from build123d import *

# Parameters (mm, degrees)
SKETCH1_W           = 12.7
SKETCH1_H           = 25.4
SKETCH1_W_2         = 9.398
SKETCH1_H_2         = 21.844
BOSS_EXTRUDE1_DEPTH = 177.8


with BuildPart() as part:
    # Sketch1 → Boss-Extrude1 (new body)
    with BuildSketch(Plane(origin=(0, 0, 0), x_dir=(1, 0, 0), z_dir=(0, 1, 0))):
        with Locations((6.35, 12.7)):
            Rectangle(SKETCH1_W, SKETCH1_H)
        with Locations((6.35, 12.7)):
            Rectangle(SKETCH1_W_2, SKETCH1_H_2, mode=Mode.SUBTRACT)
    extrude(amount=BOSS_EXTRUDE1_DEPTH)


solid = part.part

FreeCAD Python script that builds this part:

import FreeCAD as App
import Part
import Sketcher
from FreeCAD import Vector
Q = App.Units.Quantity


def add_polygon(sketch, points):
    """Adds a closed chain of lines whose ends are joined by coincident constraints."""
    first, n = sketch.GeometryCount, len(points)
    for a, b in zip(points, points[1:] + points[:1]):
        sketch.addGeometry(Part.LineSegment(App.Vector(*a, 0), App.Vector(*b, 0)), False)
    for i in range(n):
        sketch.addConstraint(Sketcher.Constraint("Coincident", first + i, 2, first + (i + 1) % n, 1))

doc = App.newDocument("Part")
body = doc.addObject("PartDesign::Body", "Body")

# Sketch on XZ plane
sketch1 = body.newObject("Sketcher::SketchObject", "Sketch")
sketch1.AttachmentSupport = (doc.getObject("XZ_Plane"), [""])
sketch1.MapMode = "FlatFace"
add_polygon(sketch1, [(0, -25), (0, 0), (13, 0), (13, -25)])  # lines 0-3
add_polygon(sketch1, [(11, -2), (2, -2), (2, -24), (11, -24)])  # lines 4-7
sketch1.addConstraint(Sketcher.Constraint("Vertical", 0))
sketch1.addConstraint(Sketcher.Constraint("Horizontal", 1))
sketch1.addConstraint(Sketcher.Constraint("Vertical", 2))
sketch1.addConstraint(Sketcher.Constraint("Horizontal", 3))
sketch1.addConstraint(Sketcher.Constraint("Horizontal", 4))
sketch1.addConstraint(Sketcher.Constraint("Vertical", 5))
sketch1.addConstraint(Sketcher.Constraint("Horizontal", 6))
sketch1.addConstraint(Sketcher.Constraint("Vertical", 7))
sketch1.addConstraint(Sketcher.Constraint("Coincident", 0, 2, -1, 1))
sketch1.addConstraint(Sketcher.Constraint("DistanceY", 0, 1, 0, 2, Q("1 in")))
sketch1.addConstraint(Sketcher.Constraint("DistanceX", 1, 1, 1, 2, Q("0.5 in")))
sketch1.addConstraint(Sketcher.Constraint("DistanceX", 4, 2, 4, 1, Q("0.37 in")))
sketch1.addConstraint(Sketcher.Constraint("DistanceY", 5, 2, 5, 1, Q("0.86 in")))
sketch1.addConstraint(Sketcher.Constraint("DistanceY", 4, 2, -1, 1, Q("0.07 in")))
sketch1.addConstraint(Sketcher.Constraint("DistanceX", -1, 1, 4, 2, Q("0.065 in")))
pad1 = body.newObject("PartDesign::Pad", "Pad")
pad1.Profile = sketch1
pad1.Length = Q("7 in")
pad1.Reversed = True

doc.recompute()
